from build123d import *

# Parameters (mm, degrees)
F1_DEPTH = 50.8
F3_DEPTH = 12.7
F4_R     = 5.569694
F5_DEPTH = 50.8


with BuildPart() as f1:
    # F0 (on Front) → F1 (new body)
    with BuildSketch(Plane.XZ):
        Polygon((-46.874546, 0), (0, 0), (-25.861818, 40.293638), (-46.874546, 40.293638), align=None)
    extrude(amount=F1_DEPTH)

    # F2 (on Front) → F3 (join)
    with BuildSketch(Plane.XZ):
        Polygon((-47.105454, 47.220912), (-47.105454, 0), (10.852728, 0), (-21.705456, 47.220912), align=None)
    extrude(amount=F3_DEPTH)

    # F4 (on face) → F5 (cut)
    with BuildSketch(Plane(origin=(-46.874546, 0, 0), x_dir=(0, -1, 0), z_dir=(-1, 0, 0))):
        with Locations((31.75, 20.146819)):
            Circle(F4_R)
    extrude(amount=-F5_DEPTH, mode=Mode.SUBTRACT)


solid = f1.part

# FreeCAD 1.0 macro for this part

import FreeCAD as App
import Part
import Sketcher

V = App.Vector
Q = App.Units.Quantity

doc = App.newDocument("Part")
body = doc.addObject("PartDesign::Body", "Body")

sketch1 = doc.addObject("Sketcher::SketchObject", "Sketch")
body.addObject(sketch1)
sketch1.AttachmentSupport = (doc.XZ_Plane, [""])
sketch1.MapMode = "FlatFace"
sketch1.addGeometry([
    Part.LineSegment(V(-47, 0, 0), V(0, 0, 0)),
    Part.LineSegment(V(0, 0, 0), V(-26, 40, 0)),
    Part.LineSegment(V(-26, 40, 0), V(-47, 40, 0)),
    Part.LineSegment(V(-47, 40, 0), V(-47, 0, 0)),
], False)
sketch1.addConstraint([
    Sketcher.Constraint("Coincident", 0, 2, 1, 1),
    Sketcher.Constraint("Coincident", 1, 2, 2, 1),
    Sketcher.Constraint("Coincident", 2, 2, 3, 1),
    Sketcher.Constraint("Coincident", 3, 2, 0, 1),
    Sketcher.Constraint("Horizontal", 0),
    Sketcher.Constraint("Horizontal", 2),
    Sketcher.Constraint("Vertical", 3),
    Sketcher.Constraint("Coincident", 0, 2, -1, 1),
    Sketcher.Constraint("DistanceX", 2, 2, 2, 1, Q("21.012728 mm")),
    Sketcher.Constraint("DistanceX", 0, 1, 0, 2, Q("46.874546 mm")),
    Sketcher.Constraint("DistanceY", 3, 2, 3, 1, Q("40.293638 mm")),
])
pad1 = doc.addObject("PartDesign::Pad", "Pad")
body.addObject(pad1)
pad1.Profile = sketch1
pad1.Length = Q("2 in")

sketch2 = doc.addObject("Sketcher::SketchObject", "Sketch001")
body.addObject(sketch2)
sketch2.AttachmentSupport = (doc.XZ_Plane, [""])
sketch2.MapMode = "FlatFace"
sketch2.addGeometry([
    Part.LineSegment(V(-47, 47, 0), V(-47, 0, 0)),
    Part.LineSegment(V(-47, 0, 0), V(11, 0, 0)),
    Part.LineSegment(V(11, 0, 0), V(-22, 47, 0)),
    Part.LineSegment(V(-22, 47, 0), V(-47, 47, 0)),
], False)
sketch2.addConstraint([
    Sketcher.Constraint("Coincident", 0, 2, 1, 1),
    Sketcher.Constraint("Coincident", 1, 2, 2, 1),
    Sketcher.Constraint("Coincident", 2, 2, 3, 1),
    Sketcher.Constraint("Coincident", 3, 2, 0, 1),
    Sketcher.Constraint("Vertical", 0),
    Sketcher.Constraint("Horizontal", 1),
    Sketcher.Constraint("Horizontal", 3),
    Sketcher.Constraint("PointOnObject", 0, 2, -1),
    Sketcher.Constraint("DistanceX", 3, 2, 3, 1, Q("0.9999999 in")),
    Sketcher.Constraint("DistanceY", 0, 2, 0, 1, Q("47.220912 mm")),
    Sketcher.Constraint("DistanceX", 1, 1, 1, 2, Q("57.958182 mm")),
    Sketcher.Constraint("DistanceX", -1, 1, 1, 2, Q("10.852728 mm")),
])
pad2 = doc.addObject("PartDesign::Pad", "Pad001")
body.addObject(pad2)
pad2.Profile = sketch2
pad2.Length = Q("0.5 in")

sketch3 = doc.addObject("Sketcher::SketchObject", "Sketch002")
body.addObject(sketch3)
sketch3.AttachmentSupport = (doc.YZ_Plane, [""])
sketch3.MapMode = "FlatFace"
sketch3.AttachmentOffset = App.Placement(V(0, 0, -46.874546), App.Rotation())
sketch3.addGeometry(Part.Circle(V(-32, 20, 0), V(0, 0, 1), 6), False)
sketch3.addConstraint([
    Sketcher.Constraint("DistanceX", 0, 3, -1, 1, Q("1.25 in")),
    Sketcher.Constraint("Diameter", 0, Q("11.139388 mm")),
    Sketcher.Constraint("DistanceY", -1, 1, 0, 3, Q("20.146819 mm")),
])
pocket1 = doc.addObject("PartDesign::Pocket", "Pocket")
body.addObject(pocket1)
pocket1.Profile = sketch3
pocket1.Length = Q("2 in")
pocket1.Reversed = True

doc.recompute()
